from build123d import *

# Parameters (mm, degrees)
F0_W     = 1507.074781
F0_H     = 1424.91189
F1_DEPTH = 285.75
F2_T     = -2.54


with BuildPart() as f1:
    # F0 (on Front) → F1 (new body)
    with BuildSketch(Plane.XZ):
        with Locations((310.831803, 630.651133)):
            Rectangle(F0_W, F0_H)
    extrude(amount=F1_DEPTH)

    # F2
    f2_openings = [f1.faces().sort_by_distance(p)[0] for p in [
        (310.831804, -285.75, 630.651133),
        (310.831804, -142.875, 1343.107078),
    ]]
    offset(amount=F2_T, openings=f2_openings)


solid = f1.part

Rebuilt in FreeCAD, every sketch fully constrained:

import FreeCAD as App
import Part
import Sketcher
from FreeCAD import Vector
Q = App.Units.Quantity


def faces_at(feature, points):
    """Names of the faces that lie closest to the given points."""
    faces = feature.Shape.Faces
    near = lambda p: min(range(len(faces)), key=lambda i: faces[i].distToShape(Part.Vertex(*p))[0])
    return sorted({f"Face{near(p) + 1}" for p in points})


def add_polygon(sketch, points):
    """Adds a closed chain of lines whose ends are joined by coincident constraints."""
    first, n = sketch.GeometryCount, len(points)
    for a, b in zip(points, points[1:] + points[:1]):
        sketch.addGeometry(Part.LineSegment(App.Vector(*a, 0), App.Vector(*b, 0)), False)
    for i in range(n):
        sketch.addConstraint(Sketcher.Constraint("Coincident", first + i, 2, first + (i + 1) % n, 1))

doc = App.newDocument("Part")
body = doc.addObject("PartDesign::Body", "Body")

sketch1 = body.newObject("Sketcher::SketchObject", "Sketch")
sketch1.AttachmentSupport = (doc.getObject("XZ_Plane"), [""])
sketch1.MapMode = "FlatFace"
add_polygon(sketch1, [(-443, 1343), (-443, -82), (1064, -82), (1064, 1343)])
sketch1.addConstraint(Sketcher.Constraint("Vertical", 0))
sketch1.addConstraint(Sketcher.Constraint("Horizontal", 1))
sketch1.addConstraint(Sketcher.Constraint("Vertical", 2))
sketch1.addConstraint(Sketcher.Constraint("Horizontal", 3))
sketch1.addConstraint(Sketcher.Constraint("DistanceX", 1, 1, 1, 2, Q("1507.074781 mm")))
sketch1.addConstraint(Sketcher.Constraint("DistanceY", 0, 2, 0, 1, Q("1424.91189 mm")))
sketch1.addConstraint(Sketcher.Constraint("DistanceY", 0, 2, -1, 1, Q("81.804812 mm")))
sketch1.addConstraint(Sketcher.Constraint("DistanceX", 0, 2, -1, 1, Q("442.705587 mm")))
pad1 = body.newObject("PartDesign::Pad", "Pad")
pad1.Profile = sketch1
pad1.Length = Q("11.25 in")
doc.recompute()

thickness = body.newObject("PartDesign::Thickness", "Thickness")
thickness.Base = (pad1, faces_at(pad1, [(310.832, -285.75, 630.651), (310.832, -142.875, 1343.107)]))
thickness.Value = Q("0.1 in")
thickness.Reversed = True
thickness.Join = "Arc"

doc.recompute()
